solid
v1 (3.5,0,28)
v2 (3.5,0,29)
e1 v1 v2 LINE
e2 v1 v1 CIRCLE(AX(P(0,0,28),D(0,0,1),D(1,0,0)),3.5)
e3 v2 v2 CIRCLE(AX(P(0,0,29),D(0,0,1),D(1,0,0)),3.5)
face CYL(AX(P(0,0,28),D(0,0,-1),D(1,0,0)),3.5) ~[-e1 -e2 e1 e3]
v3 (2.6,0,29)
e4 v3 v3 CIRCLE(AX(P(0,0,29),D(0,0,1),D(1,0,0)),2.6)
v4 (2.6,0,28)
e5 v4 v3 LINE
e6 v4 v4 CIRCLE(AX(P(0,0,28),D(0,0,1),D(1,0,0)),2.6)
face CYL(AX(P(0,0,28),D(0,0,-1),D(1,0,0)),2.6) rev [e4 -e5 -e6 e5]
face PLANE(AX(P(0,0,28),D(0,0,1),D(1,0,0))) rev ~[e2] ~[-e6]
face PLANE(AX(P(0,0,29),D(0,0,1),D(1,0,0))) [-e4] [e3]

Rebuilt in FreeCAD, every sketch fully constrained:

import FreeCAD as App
import Part
import Sketcher

doc = App.newDocument("Part")
body = doc.addObject("PartDesign::Body", "Body")

sketch1 = doc.addObject("Sketcher::SketchObject", "Sketch")
body.addObject(sketch1)
sketch1.AttachmentSupport = (doc.XY_Plane, [""])
sketch1.MapMode = "FlatFace"
sketch1.addGeometry(Part.Circle(App.Vector(0, 0, 0), App.Vector(0, 0, 1), 2.6), False)
sketch1.addConstraint([
    Sketcher.Constraint("Coincident", 0, 3, -1, 1),
    Sketcher.Constraint("Diameter", 0, 5.2),
])
pad1 = doc.addObject("PartDesign::Pad", "Pad")
body.addObject(pad1)
pad1.Profile = sketch1
pad1.Length = 1
body2 = doc.addObject("PartDesign::Body", "Body001")

sketch2 = doc.addObject("Sketcher::SketchObject", "Sketch001")
body2.addObject(sketch2)
sketch2.AttachmentSupport = (doc.getObject("XY_Plane001"), [""])
sketch2.MapMode = "FlatFace"
sketch2.addGeometry(Part.Circle(App.Vector(0, 0, 0), App.Vector(0, 0, 1), 3.5), False)
sketch2.addConstraint([
    Sketcher.Constraint("Coincident", 0, 3, -1, 1),
    Sketcher.Constraint("Diameter", 0, 7.0),
])
pad2 = doc.addObject("PartDesign::Pad", "Pad001")
body2.addObject(pad2)
pad2.Profile = sketch2
pad2.Length = 1
doc.recompute()

boolean = doc.addObject("PartDesign::Boolean", "Boolean")
body2.addObject(boolean)
boolean.Type = "Cut"
boolean.addObjects([body])
body3 = doc.addObject("PartDesign::Body", "Body002")
doc.recompute()

body2.Placement = App.Placement(App.Vector(0, 0, 28), App.Rotation(App.Vector(0, 0, 1), 0))
boolean2 = doc.addObject("PartDesign::Boolean", "Boolean001")
body3.addObject(boolean2)
boolean2.Type = "Fuse"
boolean2.addObjects([body2])

doc.recompute()
